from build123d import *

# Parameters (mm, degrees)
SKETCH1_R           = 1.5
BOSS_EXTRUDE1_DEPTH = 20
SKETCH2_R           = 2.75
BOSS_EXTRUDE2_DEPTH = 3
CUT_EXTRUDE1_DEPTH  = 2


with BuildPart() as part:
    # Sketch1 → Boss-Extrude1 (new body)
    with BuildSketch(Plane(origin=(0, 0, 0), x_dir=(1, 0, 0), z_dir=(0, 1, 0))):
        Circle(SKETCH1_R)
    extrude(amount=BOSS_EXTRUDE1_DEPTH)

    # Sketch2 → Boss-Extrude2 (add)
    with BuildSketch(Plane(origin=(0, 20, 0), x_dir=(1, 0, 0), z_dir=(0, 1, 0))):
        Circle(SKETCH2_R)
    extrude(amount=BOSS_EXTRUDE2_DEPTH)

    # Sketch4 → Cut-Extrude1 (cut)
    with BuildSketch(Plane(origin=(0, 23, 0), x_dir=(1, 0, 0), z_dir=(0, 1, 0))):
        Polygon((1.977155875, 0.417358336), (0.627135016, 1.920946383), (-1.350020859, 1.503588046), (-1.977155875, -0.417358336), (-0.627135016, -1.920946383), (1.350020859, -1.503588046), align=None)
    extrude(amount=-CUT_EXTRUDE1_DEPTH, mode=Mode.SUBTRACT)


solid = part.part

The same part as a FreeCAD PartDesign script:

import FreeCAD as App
import Part
import Sketcher
Q = App.Units.Quantity


def add_polygon(sketch, points):
    """Adds a closed chain of lines whose ends are joined by coincident constraints."""
    first, n = sketch.GeometryCount, len(points)
    for a, b in zip(points, points[1:] + points[:1]):
        sketch.addGeometry(Part.LineSegment(App.Vector(*a, 0), App.Vector(*b, 0)), False)
    for i in range(n):
        sketch.addConstraint(Sketcher.Constraint("Coincident", first + i, 2, first + (i + 1) % n, 1))

doc = App.newDocument("Part")
body = doc.addObject("PartDesign::Body", "Body")

sketch1 = body.newObject("Sketcher::SketchObject", "Sketch")
sketch1.AttachmentSupport = (doc.getObject("XZ_Plane"), [""])
sketch1.MapMode = "FlatFace"
sketch1.addGeometry(Part.Circle(App.Vector(0, 0, 0), App.Vector(0, 0, 1), 1.5), False)
sketch1.addConstraint([
    Sketcher.Constraint("Coincident", 0, 3, -1, 1),
    Sketcher.Constraint("Diameter", 0, Q("3 mm")),
])
pad1 = body.newObject("PartDesign::Pad", "Pad")
pad1.Profile = sketch1
pad1.Length = 20
pad1.Reversed = True

sketch2 = body.newObject("Sketcher::SketchObject", "Sketch001")
sketch2.AttachmentSupport = (doc.getObject("XZ_Plane"), [""])
sketch2.MapMode = "FlatFace"
sketch2.AttachmentOffset = App.Placement(App.Vector(0, 0, -20), App.Rotation())
sketch2.addGeometry(Part.Circle(App.Vector(0, 0, 0), App.Vector(0, 0, 1), 2.75), False)
sketch2.addConstraint([
    Sketcher.Constraint("Coincident", 0, 3, -1, 1),
    Sketcher.Constraint("Diameter", 0, Q("5.5 mm")),
])
pad2 = body.newObject("PartDesign::Pad", "Pad001")
pad2.Profile = sketch2
pad2.Length = 3
pad2.Reversed = True

sketch3 = body.newObject("Sketcher::SketchObject", "Sketch002")
sketch3.AttachmentSupport = (doc.getObject("XZ_Plane"), [""])
sketch3.MapMode = "FlatFace"
sketch3.AttachmentOffset = App.Placement(App.Vector(0, 0, -23), App.Rotation())
add_polygon(sketch3, [(1.977156, -0.417358), (0.627135, -1.920946), (-1.350021, -1.503588), (-1.977156, 0.417358), (-0.627135, 1.920946), (1.350021, 1.503588)])
sketch3.addConstraint([
    Sketcher.Constraint("Symmetric", 0, 2, 3, 2, -1, 1),
    Sketcher.Constraint("Symmetric", 1, 2, 4, 2, -1, 1),
    Sketcher.Constraint("Symmetric", 2, 2, 5, 2, -1, 1),
    Sketcher.Constraint("Equal", 0, 1),
    Sketcher.Constraint("Equal", 1, 2),
    Sketcher.Constraint("DistanceX", 1, 2, -1, 1, Q("1.350021 mm")),
    Sketcher.Constraint("DistanceY", 1, 2, -1, 1, Q("1.503588 mm")),
    Sketcher.Constraint("DistanceY", -1, 1, 2, 2, Q("0.417358 mm")),
    Sketcher.Constraint("DistanceY", 0, 2, 1, 2, Q("0.417358 mm")),
])
pocket1 = body.newObject("PartDesign::Pocket", "Pocket")
pocket1.Profile = sketch3
pocket1.Length = 2
pocket1.Reversed = True

doc.recompute()
